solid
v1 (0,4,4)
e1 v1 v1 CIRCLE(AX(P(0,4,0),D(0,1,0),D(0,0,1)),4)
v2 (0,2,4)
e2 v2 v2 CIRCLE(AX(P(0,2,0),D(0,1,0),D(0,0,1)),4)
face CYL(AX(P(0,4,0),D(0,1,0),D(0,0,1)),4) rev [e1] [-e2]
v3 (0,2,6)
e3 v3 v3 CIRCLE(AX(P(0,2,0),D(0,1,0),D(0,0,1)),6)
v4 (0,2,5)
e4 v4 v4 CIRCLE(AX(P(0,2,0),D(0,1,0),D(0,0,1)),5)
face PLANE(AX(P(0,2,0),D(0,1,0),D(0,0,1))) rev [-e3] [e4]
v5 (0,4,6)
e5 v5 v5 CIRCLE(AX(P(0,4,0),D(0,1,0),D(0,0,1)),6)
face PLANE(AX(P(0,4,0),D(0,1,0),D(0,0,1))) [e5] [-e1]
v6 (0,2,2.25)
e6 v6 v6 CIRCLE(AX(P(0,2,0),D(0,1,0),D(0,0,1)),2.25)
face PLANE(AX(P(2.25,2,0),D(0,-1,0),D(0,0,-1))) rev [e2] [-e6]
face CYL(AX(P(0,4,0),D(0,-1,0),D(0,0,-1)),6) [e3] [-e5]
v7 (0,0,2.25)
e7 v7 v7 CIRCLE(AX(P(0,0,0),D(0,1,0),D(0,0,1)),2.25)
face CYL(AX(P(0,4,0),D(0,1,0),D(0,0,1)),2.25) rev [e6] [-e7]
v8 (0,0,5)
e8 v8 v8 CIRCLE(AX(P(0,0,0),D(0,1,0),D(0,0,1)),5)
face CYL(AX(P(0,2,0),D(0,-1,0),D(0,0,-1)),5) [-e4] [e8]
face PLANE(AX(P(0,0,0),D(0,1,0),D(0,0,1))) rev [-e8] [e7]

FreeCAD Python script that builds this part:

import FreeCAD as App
import Part
import Sketcher

doc = App.newDocument("Part")
body = doc.addObject("PartDesign::Body", "Body")

# Sketch on XZ plane
sketch1 = doc.addObject("Sketcher::SketchObject", "Sketch")
body.addObject(sketch1)
sketch1.AttachmentSupport = (doc.XZ_Plane, [""])
sketch1.MapMode = "FlatFace"
sketch1.addGeometry(Part.Circle(App.Vector(0, 0, 0), App.Vector(0, 0, 1), 5), False)
sketch1.addConstraint([
    Sketcher.Constraint("Coincident", 0, 3, -1, 1),
    Sketcher.Constraint("Diameter", 0, 10.0),
])
pad1 = doc.addObject("PartDesign::Pad", "Pad")
body.addObject(pad1)
pad1.Profile = sketch1
pad1.Length = 2
pad1.Reversed = True

# Sketch on XZ plane
sketch2 = doc.addObject("Sketcher::SketchObject", "Sketch001")
body.addObject(sketch2)
sketch2.AttachmentSupport = (doc.XZ_Plane, [""])
sketch2.MapMode = "FlatFace"
sketch2.AttachmentOffset = App.Placement(App.Vector(0, 0, -2), App.Rotation())
sketch2.addGeometry(Part.Circle(App.Vector(0, 0, 0), App.Vector(0, 0, 1), 6), False)
sketch2.addConstraint([
    Sketcher.Constraint("Coincident", 0, 3, -1, 1),
    Sketcher.Constraint("Diameter", 0, 12.0),
])
pad2 = doc.addObject("PartDesign::Pad", "Pad001")
body.addObject(pad2)
pad2.Profile = sketch2
pad2.Length = 2
pad2.Reversed = True

# Sketch on XZ plane
sketch3 = doc.addObject("Sketcher::SketchObject", "Sketch002")
body.addObject(sketch3)
sketch3.AttachmentSupport = (doc.XZ_Plane, [""])
sketch3.MapMode = "FlatFace"
sketch3.AttachmentOffset = App.Placement(App.Vector(0, 0, -4), App.Rotation())
sketch3.addGeometry(Part.Circle(App.Vector(0, 0, 0), App.Vector(0, 0, 1), 2.25), False)
sketch3.addConstraint([
    Sketcher.Constraint("Coincident", 0, 3, -1, 1),
    Sketcher.Constraint("Diameter", 0, 4.5),
])
doc.recompute()
hole = doc.addObject("PartDesign::Hole", "Hole")
body.addObject(hole)
hole.Profile = sketch3
hole.ThreadType = "None"
hole.Diameter = 4.5
hole.DepthType = "ThroughAll"
hole.HoleCutType = "Counterbore"
hole.HoleCutDiameter = 8
hole.HoleCutDepth = 2
hole.Reversed = True

doc.recompute()
